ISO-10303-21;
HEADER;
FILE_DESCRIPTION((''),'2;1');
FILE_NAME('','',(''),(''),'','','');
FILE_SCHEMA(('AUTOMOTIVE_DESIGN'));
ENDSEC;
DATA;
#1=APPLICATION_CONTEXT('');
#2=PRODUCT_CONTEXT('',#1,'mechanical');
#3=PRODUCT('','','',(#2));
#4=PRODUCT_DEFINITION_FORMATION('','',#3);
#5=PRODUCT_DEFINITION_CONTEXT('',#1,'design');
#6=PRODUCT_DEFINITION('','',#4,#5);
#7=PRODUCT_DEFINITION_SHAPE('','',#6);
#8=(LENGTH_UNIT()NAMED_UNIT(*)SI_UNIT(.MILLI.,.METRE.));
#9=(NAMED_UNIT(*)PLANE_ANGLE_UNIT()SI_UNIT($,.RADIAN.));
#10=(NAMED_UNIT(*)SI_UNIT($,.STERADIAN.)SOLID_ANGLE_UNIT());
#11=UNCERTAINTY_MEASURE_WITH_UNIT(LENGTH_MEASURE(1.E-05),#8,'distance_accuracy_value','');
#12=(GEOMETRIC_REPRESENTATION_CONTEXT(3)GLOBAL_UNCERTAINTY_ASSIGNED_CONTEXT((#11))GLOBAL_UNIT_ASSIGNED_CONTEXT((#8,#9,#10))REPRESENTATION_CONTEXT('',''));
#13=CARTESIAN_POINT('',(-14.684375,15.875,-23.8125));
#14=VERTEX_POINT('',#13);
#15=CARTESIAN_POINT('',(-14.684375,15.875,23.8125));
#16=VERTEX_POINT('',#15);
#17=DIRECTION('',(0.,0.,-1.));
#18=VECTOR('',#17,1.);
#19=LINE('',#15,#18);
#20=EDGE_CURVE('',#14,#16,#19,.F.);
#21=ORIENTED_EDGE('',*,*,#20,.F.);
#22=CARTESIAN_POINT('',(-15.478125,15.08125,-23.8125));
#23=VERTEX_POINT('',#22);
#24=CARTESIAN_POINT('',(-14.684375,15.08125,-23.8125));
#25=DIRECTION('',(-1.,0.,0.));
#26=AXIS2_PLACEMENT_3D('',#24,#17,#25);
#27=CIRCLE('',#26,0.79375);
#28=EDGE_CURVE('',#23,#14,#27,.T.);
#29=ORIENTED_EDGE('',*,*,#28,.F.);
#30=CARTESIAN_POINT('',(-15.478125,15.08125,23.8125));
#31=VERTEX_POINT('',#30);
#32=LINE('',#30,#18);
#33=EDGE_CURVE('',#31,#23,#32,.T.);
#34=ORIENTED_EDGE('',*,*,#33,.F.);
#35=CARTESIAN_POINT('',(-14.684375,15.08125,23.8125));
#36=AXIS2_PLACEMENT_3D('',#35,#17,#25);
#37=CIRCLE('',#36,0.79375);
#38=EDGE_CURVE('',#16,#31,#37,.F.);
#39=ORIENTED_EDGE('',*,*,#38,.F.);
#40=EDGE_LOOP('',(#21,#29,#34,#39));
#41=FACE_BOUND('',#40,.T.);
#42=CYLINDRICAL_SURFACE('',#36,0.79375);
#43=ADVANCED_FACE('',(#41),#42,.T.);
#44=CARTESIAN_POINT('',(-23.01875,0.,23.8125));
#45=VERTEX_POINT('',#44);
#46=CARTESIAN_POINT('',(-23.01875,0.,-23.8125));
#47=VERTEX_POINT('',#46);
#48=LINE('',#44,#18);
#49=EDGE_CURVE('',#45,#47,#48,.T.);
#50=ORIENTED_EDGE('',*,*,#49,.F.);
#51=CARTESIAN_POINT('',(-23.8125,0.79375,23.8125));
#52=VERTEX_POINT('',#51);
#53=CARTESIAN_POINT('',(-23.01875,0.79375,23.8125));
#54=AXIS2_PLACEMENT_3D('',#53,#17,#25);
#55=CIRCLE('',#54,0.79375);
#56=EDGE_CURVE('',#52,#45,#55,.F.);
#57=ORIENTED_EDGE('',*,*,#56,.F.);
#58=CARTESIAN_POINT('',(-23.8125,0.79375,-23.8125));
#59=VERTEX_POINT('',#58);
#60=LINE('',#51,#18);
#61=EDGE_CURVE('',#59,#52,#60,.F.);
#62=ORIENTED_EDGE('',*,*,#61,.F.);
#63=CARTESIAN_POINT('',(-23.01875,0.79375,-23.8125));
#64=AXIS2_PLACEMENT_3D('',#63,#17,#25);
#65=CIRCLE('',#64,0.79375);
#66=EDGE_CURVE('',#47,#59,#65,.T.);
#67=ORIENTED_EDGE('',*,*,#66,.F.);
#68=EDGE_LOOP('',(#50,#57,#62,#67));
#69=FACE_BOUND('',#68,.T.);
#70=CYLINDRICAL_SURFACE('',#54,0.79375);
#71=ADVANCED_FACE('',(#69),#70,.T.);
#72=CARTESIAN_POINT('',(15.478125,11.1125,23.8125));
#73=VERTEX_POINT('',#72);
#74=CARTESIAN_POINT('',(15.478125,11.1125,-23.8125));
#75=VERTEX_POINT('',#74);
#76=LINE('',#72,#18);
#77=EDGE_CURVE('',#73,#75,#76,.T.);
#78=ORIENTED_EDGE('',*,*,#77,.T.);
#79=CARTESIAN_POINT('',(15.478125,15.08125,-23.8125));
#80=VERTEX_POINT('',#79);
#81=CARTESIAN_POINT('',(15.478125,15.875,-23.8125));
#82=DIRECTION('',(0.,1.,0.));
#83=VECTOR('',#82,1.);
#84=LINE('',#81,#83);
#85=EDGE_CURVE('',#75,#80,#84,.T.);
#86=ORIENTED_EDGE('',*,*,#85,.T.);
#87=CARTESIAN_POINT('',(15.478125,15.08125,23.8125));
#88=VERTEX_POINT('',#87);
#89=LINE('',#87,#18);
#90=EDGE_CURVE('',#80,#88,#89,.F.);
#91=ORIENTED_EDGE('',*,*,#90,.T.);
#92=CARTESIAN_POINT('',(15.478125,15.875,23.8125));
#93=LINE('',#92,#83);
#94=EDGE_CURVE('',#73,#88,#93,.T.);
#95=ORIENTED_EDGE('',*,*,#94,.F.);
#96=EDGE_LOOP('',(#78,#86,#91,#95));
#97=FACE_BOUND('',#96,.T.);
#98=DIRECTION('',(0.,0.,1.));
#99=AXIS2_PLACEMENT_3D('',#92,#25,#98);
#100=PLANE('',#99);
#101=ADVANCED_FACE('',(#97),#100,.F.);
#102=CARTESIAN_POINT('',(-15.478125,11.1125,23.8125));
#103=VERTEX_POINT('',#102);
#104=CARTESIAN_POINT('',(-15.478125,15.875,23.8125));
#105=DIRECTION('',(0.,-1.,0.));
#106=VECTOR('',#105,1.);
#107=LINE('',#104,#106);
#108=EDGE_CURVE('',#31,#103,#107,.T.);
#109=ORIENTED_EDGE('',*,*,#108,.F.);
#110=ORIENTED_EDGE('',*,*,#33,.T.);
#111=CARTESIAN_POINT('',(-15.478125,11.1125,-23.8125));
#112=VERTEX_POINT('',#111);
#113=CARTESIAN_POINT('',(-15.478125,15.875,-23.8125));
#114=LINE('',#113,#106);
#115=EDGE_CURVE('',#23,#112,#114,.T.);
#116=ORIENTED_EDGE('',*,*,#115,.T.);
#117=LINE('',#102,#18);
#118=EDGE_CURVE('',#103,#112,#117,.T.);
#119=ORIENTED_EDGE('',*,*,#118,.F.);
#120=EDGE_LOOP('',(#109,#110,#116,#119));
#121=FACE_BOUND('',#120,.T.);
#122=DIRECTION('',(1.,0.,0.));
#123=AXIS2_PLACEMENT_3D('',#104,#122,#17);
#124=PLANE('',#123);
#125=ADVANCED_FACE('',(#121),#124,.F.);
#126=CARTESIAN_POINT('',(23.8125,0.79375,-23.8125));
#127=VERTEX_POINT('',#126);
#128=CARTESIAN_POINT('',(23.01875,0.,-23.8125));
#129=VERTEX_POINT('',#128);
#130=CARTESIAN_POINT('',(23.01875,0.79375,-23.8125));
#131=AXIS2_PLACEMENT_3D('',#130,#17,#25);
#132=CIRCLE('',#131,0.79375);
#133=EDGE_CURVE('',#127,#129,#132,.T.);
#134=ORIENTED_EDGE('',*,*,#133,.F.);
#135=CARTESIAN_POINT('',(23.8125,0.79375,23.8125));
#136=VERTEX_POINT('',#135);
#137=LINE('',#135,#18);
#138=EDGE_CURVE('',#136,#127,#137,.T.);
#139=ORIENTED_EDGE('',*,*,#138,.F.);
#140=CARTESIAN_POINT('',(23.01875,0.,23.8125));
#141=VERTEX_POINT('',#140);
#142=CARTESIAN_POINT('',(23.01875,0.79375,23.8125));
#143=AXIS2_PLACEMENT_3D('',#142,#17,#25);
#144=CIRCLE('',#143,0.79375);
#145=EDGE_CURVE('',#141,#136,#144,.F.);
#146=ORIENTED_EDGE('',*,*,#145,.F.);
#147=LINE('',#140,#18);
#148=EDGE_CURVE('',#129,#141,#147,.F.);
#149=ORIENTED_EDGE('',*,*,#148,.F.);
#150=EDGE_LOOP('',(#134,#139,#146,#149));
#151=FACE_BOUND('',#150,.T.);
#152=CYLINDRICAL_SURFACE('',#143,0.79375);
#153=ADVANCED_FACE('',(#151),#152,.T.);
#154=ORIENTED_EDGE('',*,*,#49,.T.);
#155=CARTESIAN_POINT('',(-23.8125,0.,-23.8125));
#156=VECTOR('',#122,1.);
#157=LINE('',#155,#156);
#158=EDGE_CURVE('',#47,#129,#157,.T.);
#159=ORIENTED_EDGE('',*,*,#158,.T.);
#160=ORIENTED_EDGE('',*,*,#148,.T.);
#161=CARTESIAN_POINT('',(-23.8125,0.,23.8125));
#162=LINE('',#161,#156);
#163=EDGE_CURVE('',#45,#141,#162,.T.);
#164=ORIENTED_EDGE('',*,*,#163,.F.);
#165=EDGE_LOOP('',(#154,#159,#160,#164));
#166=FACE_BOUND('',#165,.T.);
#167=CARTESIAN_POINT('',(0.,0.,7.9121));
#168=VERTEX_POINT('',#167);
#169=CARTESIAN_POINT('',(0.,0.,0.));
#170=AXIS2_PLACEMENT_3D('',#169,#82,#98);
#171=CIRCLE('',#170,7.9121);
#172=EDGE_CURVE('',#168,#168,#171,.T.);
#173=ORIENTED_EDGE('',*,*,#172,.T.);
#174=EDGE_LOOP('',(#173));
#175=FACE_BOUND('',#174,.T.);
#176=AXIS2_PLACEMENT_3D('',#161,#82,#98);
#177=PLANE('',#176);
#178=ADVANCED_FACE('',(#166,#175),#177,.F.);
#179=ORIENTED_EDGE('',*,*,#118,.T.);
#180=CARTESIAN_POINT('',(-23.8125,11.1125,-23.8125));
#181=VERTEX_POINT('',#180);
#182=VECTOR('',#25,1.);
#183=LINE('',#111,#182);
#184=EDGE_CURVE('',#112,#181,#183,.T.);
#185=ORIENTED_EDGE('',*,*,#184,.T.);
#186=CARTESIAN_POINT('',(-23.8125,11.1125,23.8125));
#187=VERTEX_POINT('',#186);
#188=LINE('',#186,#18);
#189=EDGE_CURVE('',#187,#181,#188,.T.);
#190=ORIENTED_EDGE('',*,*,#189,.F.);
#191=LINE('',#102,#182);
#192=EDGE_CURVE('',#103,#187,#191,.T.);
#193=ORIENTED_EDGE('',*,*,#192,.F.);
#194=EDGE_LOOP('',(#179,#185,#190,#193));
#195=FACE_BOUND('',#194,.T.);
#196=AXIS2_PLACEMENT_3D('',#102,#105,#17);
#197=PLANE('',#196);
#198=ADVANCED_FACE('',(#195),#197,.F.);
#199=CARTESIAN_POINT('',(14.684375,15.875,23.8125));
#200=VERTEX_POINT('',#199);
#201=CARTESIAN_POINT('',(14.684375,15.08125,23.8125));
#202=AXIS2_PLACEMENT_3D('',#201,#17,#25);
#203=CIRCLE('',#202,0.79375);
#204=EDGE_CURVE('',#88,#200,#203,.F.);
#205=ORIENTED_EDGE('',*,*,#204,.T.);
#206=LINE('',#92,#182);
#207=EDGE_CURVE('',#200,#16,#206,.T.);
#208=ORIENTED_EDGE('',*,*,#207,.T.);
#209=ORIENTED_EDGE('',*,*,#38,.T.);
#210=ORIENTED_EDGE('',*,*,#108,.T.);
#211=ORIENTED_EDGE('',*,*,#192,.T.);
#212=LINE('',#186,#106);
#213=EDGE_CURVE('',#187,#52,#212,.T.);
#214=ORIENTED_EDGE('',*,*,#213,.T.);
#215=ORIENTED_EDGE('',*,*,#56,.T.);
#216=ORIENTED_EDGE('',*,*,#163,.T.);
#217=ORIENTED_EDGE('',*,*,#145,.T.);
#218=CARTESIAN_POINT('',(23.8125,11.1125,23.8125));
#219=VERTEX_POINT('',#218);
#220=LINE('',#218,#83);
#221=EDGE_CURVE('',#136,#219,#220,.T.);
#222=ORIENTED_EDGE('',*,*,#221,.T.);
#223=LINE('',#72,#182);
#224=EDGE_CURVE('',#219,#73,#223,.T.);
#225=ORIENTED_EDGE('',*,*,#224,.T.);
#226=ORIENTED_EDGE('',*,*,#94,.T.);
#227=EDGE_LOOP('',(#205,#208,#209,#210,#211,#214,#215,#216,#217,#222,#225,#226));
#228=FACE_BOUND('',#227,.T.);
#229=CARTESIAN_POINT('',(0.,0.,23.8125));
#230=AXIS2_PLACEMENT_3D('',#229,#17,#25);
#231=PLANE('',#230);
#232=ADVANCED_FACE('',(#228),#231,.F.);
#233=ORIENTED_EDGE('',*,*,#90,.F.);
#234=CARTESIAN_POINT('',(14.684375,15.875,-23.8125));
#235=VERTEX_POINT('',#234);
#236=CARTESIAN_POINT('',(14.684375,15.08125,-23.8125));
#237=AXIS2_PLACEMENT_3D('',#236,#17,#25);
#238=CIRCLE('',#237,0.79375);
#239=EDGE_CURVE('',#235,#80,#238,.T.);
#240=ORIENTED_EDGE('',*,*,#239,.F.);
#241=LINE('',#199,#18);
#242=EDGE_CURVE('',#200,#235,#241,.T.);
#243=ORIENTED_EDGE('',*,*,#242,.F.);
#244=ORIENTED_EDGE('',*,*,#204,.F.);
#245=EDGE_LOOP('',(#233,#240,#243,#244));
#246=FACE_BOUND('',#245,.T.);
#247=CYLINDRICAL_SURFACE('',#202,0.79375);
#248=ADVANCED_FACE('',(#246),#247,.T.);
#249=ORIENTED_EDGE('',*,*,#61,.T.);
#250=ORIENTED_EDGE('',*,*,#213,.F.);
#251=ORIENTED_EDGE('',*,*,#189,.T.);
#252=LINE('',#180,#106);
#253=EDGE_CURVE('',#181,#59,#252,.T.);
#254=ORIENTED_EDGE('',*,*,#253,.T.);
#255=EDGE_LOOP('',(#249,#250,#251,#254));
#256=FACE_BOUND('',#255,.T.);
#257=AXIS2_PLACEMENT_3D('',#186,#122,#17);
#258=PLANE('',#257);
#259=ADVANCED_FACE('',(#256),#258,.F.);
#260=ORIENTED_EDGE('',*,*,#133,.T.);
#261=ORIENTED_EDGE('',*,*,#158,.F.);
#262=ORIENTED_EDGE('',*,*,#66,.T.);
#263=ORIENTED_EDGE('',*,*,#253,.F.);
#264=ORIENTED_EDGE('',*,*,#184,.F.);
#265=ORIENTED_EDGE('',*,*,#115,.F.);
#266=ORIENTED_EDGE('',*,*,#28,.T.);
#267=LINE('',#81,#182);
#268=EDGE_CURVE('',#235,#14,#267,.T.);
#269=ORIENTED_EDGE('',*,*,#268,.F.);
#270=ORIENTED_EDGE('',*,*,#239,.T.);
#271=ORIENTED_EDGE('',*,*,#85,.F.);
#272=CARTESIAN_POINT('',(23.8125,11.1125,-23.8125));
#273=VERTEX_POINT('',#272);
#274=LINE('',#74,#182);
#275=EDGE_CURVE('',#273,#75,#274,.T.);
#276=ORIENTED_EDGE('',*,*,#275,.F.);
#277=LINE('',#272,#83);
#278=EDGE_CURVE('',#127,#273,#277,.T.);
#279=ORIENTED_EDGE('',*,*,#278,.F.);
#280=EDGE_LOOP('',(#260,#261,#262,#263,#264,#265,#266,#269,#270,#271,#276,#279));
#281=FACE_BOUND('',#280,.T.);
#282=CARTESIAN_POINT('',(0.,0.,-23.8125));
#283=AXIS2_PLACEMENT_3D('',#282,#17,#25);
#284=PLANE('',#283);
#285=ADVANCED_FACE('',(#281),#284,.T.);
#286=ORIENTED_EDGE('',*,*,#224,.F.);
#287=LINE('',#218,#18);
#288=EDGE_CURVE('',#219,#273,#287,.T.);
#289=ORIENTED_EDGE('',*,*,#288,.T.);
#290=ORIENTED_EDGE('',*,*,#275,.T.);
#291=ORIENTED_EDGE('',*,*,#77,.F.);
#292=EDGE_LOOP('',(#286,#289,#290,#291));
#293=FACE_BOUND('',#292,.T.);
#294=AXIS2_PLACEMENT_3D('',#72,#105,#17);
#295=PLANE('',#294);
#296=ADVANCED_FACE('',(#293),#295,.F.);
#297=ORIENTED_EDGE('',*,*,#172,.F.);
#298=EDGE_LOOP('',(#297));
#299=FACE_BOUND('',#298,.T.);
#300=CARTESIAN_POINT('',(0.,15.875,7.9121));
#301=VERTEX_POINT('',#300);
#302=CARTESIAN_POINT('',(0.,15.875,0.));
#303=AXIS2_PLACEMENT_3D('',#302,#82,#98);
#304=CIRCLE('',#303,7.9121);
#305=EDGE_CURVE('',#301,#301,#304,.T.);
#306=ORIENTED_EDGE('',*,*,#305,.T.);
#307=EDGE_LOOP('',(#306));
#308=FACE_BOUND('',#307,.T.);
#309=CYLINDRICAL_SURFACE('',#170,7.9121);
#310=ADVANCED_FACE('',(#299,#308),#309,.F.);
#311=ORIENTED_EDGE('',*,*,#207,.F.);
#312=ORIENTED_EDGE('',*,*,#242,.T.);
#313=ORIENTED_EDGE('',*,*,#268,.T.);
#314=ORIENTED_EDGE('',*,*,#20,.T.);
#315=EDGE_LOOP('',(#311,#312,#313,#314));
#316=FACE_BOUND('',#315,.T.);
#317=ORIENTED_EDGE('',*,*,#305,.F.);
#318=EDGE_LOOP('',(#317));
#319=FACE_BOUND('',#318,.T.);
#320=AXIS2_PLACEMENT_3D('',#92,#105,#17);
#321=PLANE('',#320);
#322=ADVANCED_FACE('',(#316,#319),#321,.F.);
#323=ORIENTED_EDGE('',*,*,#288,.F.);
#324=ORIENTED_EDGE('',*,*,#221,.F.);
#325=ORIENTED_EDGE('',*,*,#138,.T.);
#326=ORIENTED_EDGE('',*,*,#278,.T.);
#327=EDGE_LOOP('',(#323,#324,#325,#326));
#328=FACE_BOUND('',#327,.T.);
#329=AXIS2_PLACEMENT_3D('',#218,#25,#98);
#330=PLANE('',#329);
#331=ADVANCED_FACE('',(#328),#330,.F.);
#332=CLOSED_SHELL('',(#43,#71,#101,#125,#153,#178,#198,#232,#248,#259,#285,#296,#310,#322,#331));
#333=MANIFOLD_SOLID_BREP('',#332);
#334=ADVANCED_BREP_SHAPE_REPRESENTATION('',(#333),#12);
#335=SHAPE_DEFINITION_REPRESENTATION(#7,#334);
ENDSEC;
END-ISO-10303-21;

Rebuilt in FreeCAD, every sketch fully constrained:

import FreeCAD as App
import Part
import Sketcher
Q = App.Units.Quantity


def edges_at(feature, points):
    """Names of the edges that pass closest to the given points."""
    edges = feature.Shape.Edges
    near = lambda p: min(range(len(edges)), key=lambda i: edges[i].distToShape(Part.Vertex(*p))[0])
    return sorted({f"Edge{near(p) + 1}" for p in points})

doc = App.newDocument("Part")
body = doc.addObject("PartDesign::Body", "Body")

# Sketch on XY plane
sketch1 = body.newObject("Sketcher::SketchObject", "Sketch")
sketch1.AttachmentSupport = (doc.getObject("XY_Plane"), [""])
sketch1.MapMode = "FlatFace"
sketch1.addGeometry(Part.LineSegment(App.Vector(15.5, 15.9, 0), App.Vector(-15.5, 15.9, 0)), False)
sketch1.addGeometry(Part.LineSegment(App.Vector(-15.5, 15.9, 0), App.Vector(-15.5, 11.1, 0)), False)
sketch1.addGeometry(Part.LineSegment(App.Vector(-15.5, 11.1, 0), App.Vector(-23.8, 11.1, 0)), False)
sketch1.addGeometry(Part.LineSegment(App.Vector(-23.8, 11.1, 0), App.Vector(-23.8, 0, 0)), False)
sketch1.addGeometry(Part.LineSegment(App.Vector(-23.8, 0, 0), App.Vector(23.8, 0, 0)), False)
sketch1.addGeometry(Part.LineSegment(App.Vector(23.8, 0, 0), App.Vector(23.8, 11.1, 0)), False)
sketch1.addGeometry(Part.LineSegment(App.Vector(23.8, 11.1, 0), App.Vector(15.5, 11.1, 0)), False)
sketch1.addGeometry(Part.LineSegment(App.Vector(15.5, 11.1, 0), App.Vector(15.5, 15.9, 0)), False)
sketch1.addConstraint(Sketcher.Constraint("Coincident", 0, 2, 1, 1))
sketch1.addConstraint(Sketcher.Constraint("Coincident", 1, 2, 2, 1))
sketch1.addConstraint(Sketcher.Constraint("Coincident", 2, 2, 3, 1))
sketch1.addConstraint(Sketcher.Constraint("Coincident", 3, 2, 4, 1))
sketch1.addConstraint(Sketcher.Constraint("Coincident", 4, 2, 5, 1))
sketch1.addConstraint(Sketcher.Constraint("Coincident", 5, 2, 6, 1))
sketch1.addConstraint(Sketcher.Constraint("Coincident", 6, 2, 7, 1))
sketch1.addConstraint(Sketcher.Constraint("Coincident", 7, 2, 0, 1))
sketch1.addConstraint(Sketcher.Constraint("Horizontal", 0))
sketch1.addConstraint(Sketcher.Constraint("Vertical", 1))
sketch1.addConstraint(Sketcher.Constraint("Horizontal", 2))
sketch1.addConstraint(Sketcher.Constraint("Vertical", 3))
sketch1.addConstraint(Sketcher.Constraint("Horizontal", 4))
sketch1.addConstraint(Sketcher.Constraint("Vertical", 5))
sketch1.addConstraint(Sketcher.Constraint("Horizontal", 6))
sketch1.addConstraint(Sketcher.Constraint("Vertical", 7))
sketch1.addConstraint(Sketcher.Constraint("Symmetric", 3, 2, 4, 2, -1, 1))
sketch1.addConstraint(Sketcher.Constraint("Symmetric", 1, 2, 6, 2, -2))
sketch1.addConstraint(Sketcher.Constraint("DistanceX", 0, 2, 0, 1, Q("1.21875 in")))
sketch1.addConstraint(Sketcher.Constraint("DistanceX", 2, 2, 2, 1, Q("0.328125 in")))
sketch1.addConstraint(Sketcher.Constraint("DistanceY", 1, 2, 1, 1, Q("0.1875 in")))
sketch1.addConstraint(Sketcher.Constraint("DistanceY", 3, 2, 3, 1, Q("0.4375 in")))
pad1 = body.newObject("PartDesign::Pad", "Pad")
pad1.Profile = sketch1
pad1.Length = Q("1.875 in")
pad1.Midplane = True

# Sketch on XZ plane
sketch2 = body.newObject("Sketcher::SketchObject", "Sketch001")
sketch2.AttachmentSupport = (doc.getObject("XZ_Plane"), [""])
sketch2.MapMode = "FlatFace"
sketch2.AttachmentOffset = App.Placement(App.Vector(0, 0, -0.625 * 25.4), App.Rotation())
sketch2.addGeometry(Part.Circle(App.Vector(0, 0, 0), App.Vector(0, 0, 1), 8), False)
sketch2.addConstraint(Sketcher.Constraint("Coincident", 0, 3, -1, 1))
sketch2.addConstraint(Sketcher.Constraint("Diameter", 0, Q("0.623 in")))
pocket1 = body.newObject("PartDesign::Pocket", "Pocket")
pocket1.Profile = sketch2
pocket1.Type = "ThroughAll"
pocket1.Reversed = True
doc.recompute()

fillet = body.newObject("PartDesign::Fillet", "Fillet")
fillet.Base = (pocket1, edges_at(pocket1, [
    (-23.812, 0, 0),
    (-15.478, 15.875, 0),
    (15.478, 15.875, 0),
    (23.812, 0, 0),
]))
fillet.Radius = Q("0.03125 in")

doc.recompute()
